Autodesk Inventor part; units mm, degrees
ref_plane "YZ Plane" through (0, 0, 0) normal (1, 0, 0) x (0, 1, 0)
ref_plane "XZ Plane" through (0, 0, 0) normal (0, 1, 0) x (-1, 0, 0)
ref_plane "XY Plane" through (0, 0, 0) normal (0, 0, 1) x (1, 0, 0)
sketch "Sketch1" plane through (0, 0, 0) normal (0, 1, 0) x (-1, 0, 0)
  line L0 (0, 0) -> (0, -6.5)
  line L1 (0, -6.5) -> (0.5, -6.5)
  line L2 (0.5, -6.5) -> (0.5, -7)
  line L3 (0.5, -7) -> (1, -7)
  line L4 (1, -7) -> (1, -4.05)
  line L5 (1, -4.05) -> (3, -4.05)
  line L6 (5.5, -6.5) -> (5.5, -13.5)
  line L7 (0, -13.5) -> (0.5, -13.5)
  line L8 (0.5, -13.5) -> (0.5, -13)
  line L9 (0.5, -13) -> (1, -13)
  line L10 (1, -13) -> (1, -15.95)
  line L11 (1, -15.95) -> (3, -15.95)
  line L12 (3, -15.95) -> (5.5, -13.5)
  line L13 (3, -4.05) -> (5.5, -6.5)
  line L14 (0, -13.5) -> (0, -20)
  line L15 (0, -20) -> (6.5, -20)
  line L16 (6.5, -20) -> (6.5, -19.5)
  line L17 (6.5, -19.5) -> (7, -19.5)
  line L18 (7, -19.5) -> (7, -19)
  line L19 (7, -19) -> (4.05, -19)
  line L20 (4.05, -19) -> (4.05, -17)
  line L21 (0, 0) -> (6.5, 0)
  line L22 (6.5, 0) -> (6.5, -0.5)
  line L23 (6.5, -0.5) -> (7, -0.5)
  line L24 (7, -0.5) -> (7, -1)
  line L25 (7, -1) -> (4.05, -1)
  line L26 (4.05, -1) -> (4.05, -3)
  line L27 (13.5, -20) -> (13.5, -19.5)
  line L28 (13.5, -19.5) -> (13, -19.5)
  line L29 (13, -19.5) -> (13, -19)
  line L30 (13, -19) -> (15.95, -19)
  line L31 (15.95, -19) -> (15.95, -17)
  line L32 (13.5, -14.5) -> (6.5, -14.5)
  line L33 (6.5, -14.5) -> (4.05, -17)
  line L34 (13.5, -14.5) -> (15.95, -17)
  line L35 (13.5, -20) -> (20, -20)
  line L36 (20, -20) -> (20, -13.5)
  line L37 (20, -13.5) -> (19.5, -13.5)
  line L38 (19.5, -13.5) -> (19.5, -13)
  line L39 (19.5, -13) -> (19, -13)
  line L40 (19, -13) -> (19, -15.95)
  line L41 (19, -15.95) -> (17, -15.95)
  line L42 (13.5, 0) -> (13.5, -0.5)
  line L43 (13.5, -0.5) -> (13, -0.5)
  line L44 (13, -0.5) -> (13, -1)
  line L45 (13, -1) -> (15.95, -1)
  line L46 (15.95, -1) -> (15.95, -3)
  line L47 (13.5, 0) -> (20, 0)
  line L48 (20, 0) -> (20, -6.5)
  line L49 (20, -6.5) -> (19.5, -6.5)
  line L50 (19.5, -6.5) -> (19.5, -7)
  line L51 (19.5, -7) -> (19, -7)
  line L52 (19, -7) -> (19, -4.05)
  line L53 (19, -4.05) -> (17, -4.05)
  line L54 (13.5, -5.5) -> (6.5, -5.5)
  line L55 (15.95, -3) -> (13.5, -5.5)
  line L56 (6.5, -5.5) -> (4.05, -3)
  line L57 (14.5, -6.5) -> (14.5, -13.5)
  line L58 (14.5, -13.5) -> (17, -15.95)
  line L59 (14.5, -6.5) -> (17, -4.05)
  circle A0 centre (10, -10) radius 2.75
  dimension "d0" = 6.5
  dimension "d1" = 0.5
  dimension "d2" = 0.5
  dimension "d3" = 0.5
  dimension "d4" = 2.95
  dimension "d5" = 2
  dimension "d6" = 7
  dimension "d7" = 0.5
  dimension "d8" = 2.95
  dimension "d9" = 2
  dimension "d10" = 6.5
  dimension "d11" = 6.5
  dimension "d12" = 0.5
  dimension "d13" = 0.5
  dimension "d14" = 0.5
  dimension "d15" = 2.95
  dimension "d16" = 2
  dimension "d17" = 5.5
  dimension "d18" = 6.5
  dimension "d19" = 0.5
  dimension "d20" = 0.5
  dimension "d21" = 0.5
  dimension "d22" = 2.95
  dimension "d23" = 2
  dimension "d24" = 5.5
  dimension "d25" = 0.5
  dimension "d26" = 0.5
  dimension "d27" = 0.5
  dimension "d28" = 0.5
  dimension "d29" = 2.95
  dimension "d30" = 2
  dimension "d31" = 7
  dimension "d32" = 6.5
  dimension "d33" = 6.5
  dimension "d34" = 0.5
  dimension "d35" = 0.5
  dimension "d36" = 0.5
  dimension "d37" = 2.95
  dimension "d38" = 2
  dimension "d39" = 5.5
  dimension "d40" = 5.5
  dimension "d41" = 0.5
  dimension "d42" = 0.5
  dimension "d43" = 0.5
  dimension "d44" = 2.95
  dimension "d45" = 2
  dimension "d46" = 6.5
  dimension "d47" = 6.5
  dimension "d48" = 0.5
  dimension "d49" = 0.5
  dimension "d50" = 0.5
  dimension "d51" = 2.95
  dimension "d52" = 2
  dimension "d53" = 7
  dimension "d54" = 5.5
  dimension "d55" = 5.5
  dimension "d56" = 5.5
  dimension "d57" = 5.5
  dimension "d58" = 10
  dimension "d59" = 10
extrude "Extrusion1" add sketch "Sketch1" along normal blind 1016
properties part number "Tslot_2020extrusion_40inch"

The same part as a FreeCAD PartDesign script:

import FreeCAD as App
import Part
import Sketcher
from FreeCAD import Vector


def add_polygon(sketch, points):
    """Adds a closed chain of lines whose ends are joined by coincident constraints."""
    first, n = sketch.GeometryCount, len(points)
    for a, b in zip(points, points[1:] + points[:1]):
        sketch.addGeometry(Part.LineSegment(App.Vector(*a, 0), App.Vector(*b, 0)), False)
    for i in range(n):
        sketch.addConstraint(Sketcher.Constraint("Coincident", first + i, 2, first + (i + 1) % n, 1))

doc = App.newDocument("Part")
body = doc.addObject("PartDesign::Body", "Body")

sketch1 = body.newObject("Sketcher::SketchObject", "Sketch")
sketch1.AttachmentSupport = (doc.getObject("XZ_Plane"), [""])
sketch1.MapMode = "FlatFace"
add_polygon(sketch1, [(-6.5, 0), (0, 0), (0, -6.5), (-0.5, -6.5), (-0.5, -7), (-1, -7), (-1, -4), (-3, -4), (-5.5, -6.5), (-5.5, -13.5), (-3, -15.9), (-1, -15.9), (-1, -13), (-0.5, -13), (-0.5, -13.5), (0, -13.5), (0, -20), (-6.5, -20), (-6.5, -19.5), (-7, -19.5), (-7, -19), (-4, -19), (-4, -17), (-6.5, -14.5), (-13.5, -14.5), (-15.9, -17), (-15.9, -19), (-13, -19), (-13, -19.5), (-13.5, -19.5), (-13.5, -20), (-20, -20), (-20, -13.5), (-19.5, -13.5), (-19.5, -13), (-19, -13), (-19, -15.9), (-17, -15.9), (-14.5, -13.5), (-14.5, -6.5), (-17, -4), (-19, -4), (-19, -7), (-19.5, -7), (-19.5, -6.5), (-20, -6.5), (-20, 0), (-13.5, 0), (-13.5, -0.5), (-13, -0.5), (-13, -1), (-15.9, -1), (-15.9, -3), (-13.5, -5.5), (-6.5, -5.5), (-4, -3), (-4, -1), (-7, -1), (-7, -0.5), (-6.5, -0.5)])
sketch1.addGeometry(Part.Circle(Vector(-10, -10, 0), Vector(0, 0, 1), 2.8), False)
sketch1.addConstraint(Sketcher.Constraint("Horizontal", 0))
sketch1.addConstraint(Sketcher.Constraint("Vertical", 1))
sketch1.addConstraint(Sketcher.Constraint("Horizontal", 2))
sketch1.addConstraint(Sketcher.Constraint("Vertical", 3))
sketch1.addConstraint(Sketcher.Constraint("Horizontal", 4))
sketch1.addConstraint(Sketcher.Constraint("Vertical", 5))
sketch1.addConstraint(Sketcher.Constraint("Horizontal", 6))
sketch1.addConstraint(Sketcher.Constraint("Vertical", 8))
sketch1.addConstraint(Sketcher.Constraint("Horizontal", 10))
sketch1.addConstraint(Sketcher.Constraint("Vertical", 11))
sketch1.addConstraint(Sketcher.Constraint("Horizontal", 12))
sketch1.addConstraint(Sketcher.Constraint("Vertical", 13))
sketch1.addConstraint(Sketcher.Constraint("Horizontal", 14))
sketch1.addConstraint(Sketcher.Constraint("Vertical", 15))
sketch1.addConstraint(Sketcher.Constraint("Horizontal", 16))
sketch1.addConstraint(Sketcher.Constraint("Vertical", 17))
sketch1.addConstraint(Sketcher.Constraint("Horizontal", 18))
sketch1.addConstraint(Sketcher.Constraint("Vertical", 19))
sketch1.addConstraint(Sketcher.Constraint("Horizontal", 20))
sketch1.addConstraint(Sketcher.Constraint("Vertical", 21))
sketch1.addConstraint(Sketcher.Constraint("Horizontal", 23))
sketch1.addConstraint(Sketcher.Constraint("Vertical", 25))
sketch1.addConstraint(Sketcher.Constraint("Horizontal", 26))
sketch1.addConstraint(Sketcher.Constraint("Vertical", 27))
sketch1.addConstraint(Sketcher.Constraint("Horizontal", 28))
sketch1.addConstraint(Sketcher.Constraint("Vertical", 29))
sketch1.addConstraint(Sketcher.Constraint("Horizontal", 30))
sketch1.addConstraint(Sketcher.Constraint("Vertical", 31))
sketch1.addConstraint(Sketcher.Constraint("Horizontal", 32))
sketch1.addConstraint(Sketcher.Constraint("Vertical", 33))
sketch1.addConstraint(Sketcher.Constraint("Horizontal", 34))
sketch1.addConstraint(Sketcher.Constraint("Vertical", 35))
sketch1.addConstraint(Sketcher.Constraint("Horizontal", 36))
sketch1.addConstraint(Sketcher.Constraint("Vertical", 38))
sketch1.addConstraint(Sketcher.Constraint("Horizontal", 40))
sketch1.addConstraint(Sketcher.Constraint("Vertical", 41))
sketch1.addConstraint(Sketcher.Constraint("Horizontal", 42))
sketch1.addConstraint(Sketcher.Constraint("Vertical", 43))
sketch1.addConstraint(Sketcher.Constraint("Horizontal", 44))
sketch1.addConstraint(Sketcher.Constraint("Vertical", 45))
sketch1.addConstraint(Sketcher.Constraint("Horizontal", 46))
sketch1.addConstraint(Sketcher.Constraint("Vertical", 47))
sketch1.addConstraint(Sketcher.Constraint("Horizontal", 48))
sketch1.addConstraint(Sketcher.Constraint("Vertical", 49))
sketch1.addConstraint(Sketcher.Constraint("Horizontal", 50))
sketch1.addConstraint(Sketcher.Constraint("Vertical", 51))
sketch1.addConstraint(Sketcher.Constraint("Horizontal", 53))
sketch1.addConstraint(Sketcher.Constraint("Vertical", 55))
sketch1.addConstraint(Sketcher.Constraint("Horizontal", 56))
sketch1.addConstraint(Sketcher.Constraint("Vertical", 57))
sketch1.addConstraint(Sketcher.Constraint("Horizontal", 58))
sketch1.addConstraint(Sketcher.Constraint("Vertical", 59))
sketch1.addConstraint(Sketcher.Constraint("Coincident", 0, 2, -1, 1))
sketch1.addConstraint(Sketcher.Constraint("PointOnObject", 14, 2, -2))
sketch1.addConstraint(Sketcher.Constraint("PointOnObject", 45, 2, -1))
sketch1.addConstraint(Sketcher.Constraint("Perpendicular", 7, 22))
sketch1.addConstraint(Sketcher.Constraint("Perpendicular", 9, 24))
sketch1.addConstraint(Sketcher.Constraint("Perpendicular", 22, 37))
sketch1.addConstraint(Sketcher.Constraint("Perpendicular", 24, 39))
sketch1.addConstraint(Sketcher.Constraint("Perpendicular", 37, 52))
sketch1.addConstraint(Sketcher.Constraint("Perpendicular", 39, 54))
sketch1.addConstraint(Sketcher.Constraint("Horizontal", 2, 2, 7, 2))
sketch1.addConstraint(Sketcher.Constraint("Horizontal", 8, 2, 13, 2))
sketch1.addConstraint(Sketcher.Constraint("Horizontal", 21, 2, 24, 2))
sketch1.addConstraint(Sketcher.Constraint("Horizontal", 20, 2, 25, 2))
sketch1.addConstraint(Sketcher.Constraint("Horizontal", 18, 2, 27, 2))
sketch1.addConstraint(Sketcher.Constraint("Horizontal", 16, 2, 29, 2))
sketch1.addConstraint(Sketcher.Constraint("Horizontal", 14, 2, 31, 2))
sketch1.addConstraint(Sketcher.Constraint("Horizontal", 12, 2, 33, 2))
sketch1.addConstraint(Sketcher.Constraint("Horizontal", 10, 2, 35, 2))
sketch1.addConstraint(Sketcher.Constraint("Horizontal", 32, 2, 37, 2))
sketch1.addConstraint(Sketcher.Constraint("Horizontal", 7, 2, 38, 2))
sketch1.addConstraint(Sketcher.Constraint("Horizontal", 6, 2, 39, 2))
sketch1.addConstraint(Sketcher.Constraint("Horizontal", 4, 2, 41, 2))
sketch1.addConstraint(Sketcher.Constraint("Horizontal", 38, 2, 43, 2))
sketch1.addConstraint(Sketcher.Constraint("Horizontal", 51, 2, 54, 2))
sketch1.addConstraint(Sketcher.Constraint("Horizontal", 50, 2, 55, 2))
sketch1.addConstraint(Sketcher.Constraint("Horizontal", 48, 2, 57, 2))
sketch1.addConstraint(Sketcher.Constraint("Vertical", 6, 2, 9, 2))
sketch1.addConstraint(Sketcher.Constraint("Vertical", 5, 2, 10, 2))
sketch1.addConstraint(Sketcher.Constraint("Vertical", 3, 2, 12, 2))
sketch1.addConstraint(Sketcher.Constraint("Vertical", 17, 2, 22, 2))
sketch1.addConstraint(Sketcher.Constraint("Vertical", 23, 2, 28, 2))
sketch1.addConstraint(Sketcher.Constraint("Vertical", 36, 2, 39, 2))
sketch1.addConstraint(Sketcher.Constraint("Vertical", 35, 2, 40, 2))
sketch1.addConstraint(Sketcher.Constraint("Vertical", 33, 2, 42, 2))
sketch1.addConstraint(Sketcher.Constraint("Vertical", 31, 2, 44, 2))
sketch1.addConstraint(Sketcher.Constraint("Vertical", 29, 2, 46, 2))
sketch1.addConstraint(Sketcher.Constraint("Vertical", 27, 2, 48, 2))
sketch1.addConstraint(Sketcher.Constraint("Vertical", 25, 2, 50, 2))
sketch1.addConstraint(Sketcher.Constraint("Vertical", 47, 2, 52, 2))
sketch1.addConstraint(Sketcher.Constraint("Vertical", 22, 2, 53, 2))
sketch1.addConstraint(Sketcher.Constraint("Vertical", 19, 2, 56, 2))
sketch1.addConstraint(Sketcher.Constraint("Vertical", 53, 2, 58, 2))
sketch1.addConstraint(Sketcher.Constraint("Equal", 2, 4))
sketch1.addConstraint(Sketcher.Constraint("Equal", 14, 18))
sketch1.addConstraint(Sketcher.Constraint("Equal", 20, 26))
sketch1.addConstraint(Sketcher.Constraint("Equal", 16, 30))
sketch1.addConstraint(Sketcher.Constraint("Equal", 28, 32))
sketch1.addConstraint(Sketcher.Constraint("Equal", 32, 34))
sketch1.addConstraint(Sketcher.Constraint("Equal", 10, 36))
sketch1.addConstraint(Sketcher.Constraint("Equal", 46, 1))
sketch1.addConstraint(Sketcher.Constraint("Equal", 58, 3))
sketch1.addConstraint(Sketcher.Constraint("Equal", 56, 5))
sketch1.addConstraint(Sketcher.Constraint("Equal", 53, 8))
sketch1.addConstraint(Sketcher.Constraint("Equal", 5, 11))
sketch1.addConstraint(Sketcher.Constraint("Equal", 1, 15))
sketch1.addConstraint(Sketcher.Constraint("Equal", 13, 17))
sketch1.addConstraint(Sketcher.Constraint("Equal", 17, 19))
sketch1.addConstraint(Sketcher.Constraint("Equal", 40, 21))
sketch1.addConstraint(Sketcher.Constraint("Equal", 43, 47))
sketch1.addConstraint(Sketcher.Constraint("Equal", 47, 49))
sketch1.addConstraint(Sketcher.Constraint("Equal", 25, 51))
sketch1.addConstraint(Sketcher.Constraint("Diameter", 60, 5.5))
sketch1.addConstraint(Sketcher.Constraint("DistanceX", 6, 2, 6, 1, 2.0))
sketch1.addConstraint(Sketcher.Constraint("DistanceX", 23, 2, 23, 1, 7.0))
sketch1.addConstraint(Sketcher.Constraint("DistanceX", 0, 1, 0, 2, 6.5))
sketch1.addConstraint(Sketcher.Constraint("DistanceX", 2, 2, 2, 1, 0.5))
sketch1.addConstraint(Sketcher.Constraint("DistanceX", 60, 3, -1, 1, 10.0))
sketch1.addConstraint(Sketcher.Constraint("DistanceY", 60, 3, -1, 1, 10.0))
sketch1.addConstraint(Sketcher.Constraint("DistanceX", 20, 1, 20, 2, 2.95))
sketch1.addConstraint(Sketcher.Constraint("DistanceX", 7, 2, -1, 1, 5.5))
pad1 = body.newObject("PartDesign::Pad", "Pad")
pad1.Profile = sketch1
pad1.Length = 1016
pad1.Reversed = True

doc.recompute()
